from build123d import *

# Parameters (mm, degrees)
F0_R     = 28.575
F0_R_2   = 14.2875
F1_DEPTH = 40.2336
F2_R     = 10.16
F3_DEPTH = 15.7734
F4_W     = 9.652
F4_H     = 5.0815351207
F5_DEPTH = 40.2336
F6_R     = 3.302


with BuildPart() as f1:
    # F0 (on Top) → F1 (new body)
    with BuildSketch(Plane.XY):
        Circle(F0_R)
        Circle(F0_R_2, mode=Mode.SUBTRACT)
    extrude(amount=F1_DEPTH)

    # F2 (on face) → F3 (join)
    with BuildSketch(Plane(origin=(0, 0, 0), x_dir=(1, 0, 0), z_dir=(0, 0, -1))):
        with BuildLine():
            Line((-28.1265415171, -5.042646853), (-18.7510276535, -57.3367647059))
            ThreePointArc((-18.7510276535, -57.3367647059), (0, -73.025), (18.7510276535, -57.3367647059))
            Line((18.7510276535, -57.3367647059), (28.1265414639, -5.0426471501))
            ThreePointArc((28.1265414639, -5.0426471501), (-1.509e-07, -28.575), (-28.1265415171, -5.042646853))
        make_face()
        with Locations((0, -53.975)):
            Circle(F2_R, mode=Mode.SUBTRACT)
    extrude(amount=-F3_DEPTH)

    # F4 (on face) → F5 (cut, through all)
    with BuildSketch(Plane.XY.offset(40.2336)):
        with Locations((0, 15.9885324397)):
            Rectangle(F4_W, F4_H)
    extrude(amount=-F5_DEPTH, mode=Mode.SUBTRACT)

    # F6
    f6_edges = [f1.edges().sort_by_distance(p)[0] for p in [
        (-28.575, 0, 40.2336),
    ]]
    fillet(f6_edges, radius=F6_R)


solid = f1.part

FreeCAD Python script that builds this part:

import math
import FreeCAD as App
import Part
import Sketcher
Q = App.Units.Quantity


def edges_at(feature, points):
    """Names of the edges that pass closest to the given points."""
    edges = feature.Shape.Edges
    near = lambda p: min(range(len(edges)), key=lambda i: edges[i].distToShape(Part.Vertex(*p))[0])
    return sorted({f"Edge{near(p) + 1}" for p in points})

doc = App.newDocument("Part")
body = doc.addObject("PartDesign::Body", "Body")

sketch1 = body.newObject("Sketcher::SketchObject", "Sketch")
sketch1.AttachmentSupport = (doc.getObject("XY_Plane"), [""])
sketch1.MapMode = "FlatFace"
sketch1.addGeometry([
    Part.Circle(App.Vector(0, 0, 0), App.Vector(0, 0, 1), 29),
    Part.Circle(App.Vector(0, 0, 0), App.Vector(0, 0, 1), 14),
], False)
sketch1.addConstraint([
    Sketcher.Constraint("Coincident", 0, 3, -1, 1),
    Sketcher.Constraint("Coincident", 1, 3, -1, 1),
    Sketcher.Constraint("Diameter", 0, Q("2.25 in")),
    Sketcher.Constraint("Diameter", 1, Q("1.125 in")),
])
pad1 = body.newObject("PartDesign::Pad", "Pad")
pad1.Profile = sketch1
pad1.Length = Q("1.584 in")

sketch2 = body.newObject("Sketcher::SketchObject", "Sketch001")
sketch2.AttachmentSupport = (doc.getObject("XY_Plane"), [""])
sketch2.MapMode = "FlatFace"
sketch2.addGeometry([
    Part.LineSegment(App.Vector(-28, 5, 0), App.Vector(-19, 57, 0)),
    Part.ArcOfCircle(Part.Circle(App.Vector(0, 54, 0), App.Vector(0, 0, 1), 19), math.radians(10), math.radians(170)),
    Part.LineSegment(App.Vector(19, 57, 0), App.Vector(28, 5, 0)),
    Part.ArcOfCircle(Part.Circle(App.Vector(0, 0, 0), App.Vector(0, 0, 1), 29), math.radians(10), math.radians(170)),
    Part.Circle(App.Vector(0, 54, 0), App.Vector(0, 0, 1), 10),
], False)
sketch2.addConstraint([
    Sketcher.Constraint("Tangent", 0, 2, 1, 2),
    Sketcher.Constraint("Tangent", 1, 1, 2, 1),
    Sketcher.Constraint("Tangent", 2, 2, 3, 1),
    Sketcher.Constraint("Tangent", 3, 2, 0, 1),
    Sketcher.Constraint("Coincident", 3, 3, -1, 1),
    Sketcher.Constraint("Coincident", 4, 3, 1, 3),
    Sketcher.Constraint("PointOnObject", 1, 3, -2),
    Sketcher.Constraint("Diameter", 4, Q("0.8 in")),
    Sketcher.Constraint("Radius", 1, Q("0.75 in")),
    Sketcher.Constraint("Radius", 3, Q("1.125 in")),
    Sketcher.Constraint("DistanceY", -1, 1, 1, 3, Q("2.125 in")),
])
pad2 = body.newObject("PartDesign::Pad", "Pad001")
pad2.Profile = sketch2
pad2.Length = Q("0.621 in")

sketch3 = body.newObject("Sketcher::SketchObject", "Sketch002")
sketch3.AttachmentSupport = (doc.getObject("XY_Plane"), [""])
sketch3.MapMode = "FlatFace"
sketch3.AttachmentOffset = App.Placement(App.Vector(0, 0, 1.584 * 25.4), App.Rotation())
sketch3.addGeometry([
    Part.LineSegment(App.Vector(-5, 19, 0), App.Vector(-5, 13, 0)),
    Part.LineSegment(App.Vector(-5, 13, 0), App.Vector(5, 13, 0)),
    Part.LineSegment(App.Vector(5, 13, 0), App.Vector(5, 19, 0)),
    Part.LineSegment(App.Vector(5, 19, 0), App.Vector(-5, 19, 0)),
], False)
sketch3.addConstraint([
    Sketcher.Constraint("Coincident", 0, 2, 1, 1),
    Sketcher.Constraint("Coincident", 1, 2, 2, 1),
    Sketcher.Constraint("Coincident", 2, 2, 3, 1),
    Sketcher.Constraint("Coincident", 3, 2, 0, 1),
    Sketcher.Constraint("Vertical", 0),
    Sketcher.Constraint("Horizontal", 1),
    Sketcher.Constraint("Vertical", 2),
    Sketcher.Constraint("Horizontal", 3),
    Sketcher.Constraint("DistanceX", 1, 1, 1, 2, Q("0.38 in")),
    Sketcher.Constraint("DistanceX", 0, 2, -1, 1, Q("0.19 in")),
    Sketcher.Constraint("DistanceY", -1, 1, 2, 2, Q("0.7295 in")),
    Sketcher.Constraint("DistanceY", 0, 2, 0, 1, 5.081535),
])
pocket1 = body.newObject("PartDesign::Pocket", "Pocket")
pocket1.Profile = sketch3
pocket1.Type = "ThroughAll"
doc.recompute()

fillet = body.newObject("PartDesign::Fillet", "Fillet")
fillet.Base = (pocket1, edges_at(pocket1, [(-28.575, 0, 40.234)]))
fillet.Radius = Q("0.13 in")

doc.recompute()
